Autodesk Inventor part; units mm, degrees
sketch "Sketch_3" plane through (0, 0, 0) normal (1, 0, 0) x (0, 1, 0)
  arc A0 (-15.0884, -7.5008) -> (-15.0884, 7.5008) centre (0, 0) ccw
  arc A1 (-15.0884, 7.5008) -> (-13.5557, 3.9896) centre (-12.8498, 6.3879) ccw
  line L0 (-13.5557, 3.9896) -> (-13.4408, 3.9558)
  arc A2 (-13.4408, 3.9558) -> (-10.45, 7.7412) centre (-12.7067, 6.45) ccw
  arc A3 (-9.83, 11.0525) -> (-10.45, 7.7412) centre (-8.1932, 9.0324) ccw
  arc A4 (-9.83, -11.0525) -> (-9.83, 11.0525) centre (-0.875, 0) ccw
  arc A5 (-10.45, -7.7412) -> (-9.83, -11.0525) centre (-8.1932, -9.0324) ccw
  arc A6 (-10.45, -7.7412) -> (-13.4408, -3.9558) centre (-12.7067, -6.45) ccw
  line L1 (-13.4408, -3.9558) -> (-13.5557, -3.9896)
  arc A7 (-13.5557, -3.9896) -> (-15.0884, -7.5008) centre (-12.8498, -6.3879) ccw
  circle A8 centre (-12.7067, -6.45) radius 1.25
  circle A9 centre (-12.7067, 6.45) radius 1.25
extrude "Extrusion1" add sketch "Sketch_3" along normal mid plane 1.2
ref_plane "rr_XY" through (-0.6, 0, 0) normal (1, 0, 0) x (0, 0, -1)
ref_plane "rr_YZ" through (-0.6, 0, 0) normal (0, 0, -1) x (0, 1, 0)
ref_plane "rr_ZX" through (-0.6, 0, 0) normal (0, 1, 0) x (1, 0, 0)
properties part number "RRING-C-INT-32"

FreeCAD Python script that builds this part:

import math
import FreeCAD as App
import Part
import Sketcher
from FreeCAD import Vector

doc = App.newDocument("Part")
body = doc.addObject("PartDesign::Body", "Body")

# Sketch on YZ plane
sketch1 = doc.addObject("Sketcher::SketchObject", "Sketch")
body.addObject(sketch1)
sketch1.AttachmentSupport = (doc.YZ_Plane, [""])
sketch1.MapMode = "FlatFace"
sketch1.addGeometry(Part.ArcOfCircle(Part.Circle(Vector(-12.8498, -6.3879, 0), Vector(0, 0, 1), 2.500028), math.radians(106.400922), math.radians(206.433858)), False)
sketch1.addGeometry(Part.ArcOfCircle(Part.Circle(Vector(0, 0, 0), Vector(0, 0, 1), 16.84998), math.radians(-153.566944), math.radians(153.566944)), False)
sketch1.addGeometry(Part.ArcOfCircle(Part.Circle(Vector(-12.8498, 6.3879, 0), Vector(0, 0, 1), 2.499975), math.radians(153.566142), math.radians(253.599078)), False)
sketch1.addGeometry(Part.LineSegment(Vector(-13.5557, 3.9896, 0), Vector(-13.4408, 3.9558, 0)), False)
sketch1.addGeometry(Part.ArcOfCircle(Part.Circle(Vector(-12.7067, 6.45, 0), Vector(0, 0, 1), 2.599988), math.radians(-106.40036), math.radians(29.776588)), False)
sketch1.addGeometry(Part.ArcOfCircle(Part.Circle(Vector(-8.1932, 9.0324, 0), Vector(0, 0, 1), 2.599984), math.radians(129.01636), math.radians(209.775494)), False)
sketch1.addGeometry(Part.ArcOfCircle(Part.Circle(Vector(-0.875, 0, 0), Vector(0, 0, 1), 14.22497), math.radians(-129.015219), math.radians(129.015219)), False)
sketch1.addGeometry(Part.ArcOfCircle(Part.Circle(Vector(-8.1932, -9.0324, 0), Vector(0, 0, 1), 2.600066), math.radians(150.224506), math.radians(230.98364)), False)
sketch1.addGeometry(Part.ArcOfCircle(Part.Circle(Vector(-12.7067, -6.45, 0), Vector(0, 0, 1), 2.599979), math.radians(-29.776588), math.radians(106.40036)), False)
sketch1.addGeometry(Part.LineSegment(Vector(-13.4408, -3.9558, 0), Vector(-13.5557, -3.9896, 0)), False)
sketch1.addGeometry(Part.Circle(Vector(-12.7067, -6.45, 0), Vector(0, 0, 1), 1.25), False)
sketch1.addGeometry(Part.Circle(Vector(-12.7067, 6.45, 0), Vector(0, 0, 1), 1.25), False)
sketch1.addConstraint(Sketcher.Constraint("Coincident", 0, 2, 1, 1))
sketch1.addConstraint(Sketcher.Constraint("Coincident", 1, 2, 2, 1))
sketch1.addConstraint(Sketcher.Constraint("Coincident", 2, 2, 3, 1))
sketch1.addConstraint(Sketcher.Constraint("Coincident", 3, 2, 4, 1))
sketch1.addConstraint(Sketcher.Constraint("Coincident", 4, 2, 5, 2))
sketch1.addConstraint(Sketcher.Constraint("Coincident", 5, 1, 6, 2))
sketch1.addConstraint(Sketcher.Constraint("Coincident", 6, 1, 7, 2))
sketch1.addConstraint(Sketcher.Constraint("Coincident", 7, 1, 8, 1))
sketch1.addConstraint(Sketcher.Constraint("Coincident", 8, 2, 9, 1))
sketch1.addConstraint(Sketcher.Constraint("Coincident", 9, 2, 0, 1))
sketch1.addConstraint(Sketcher.Constraint("Coincident", 1, 3, -1, 1))
sketch1.addConstraint(Sketcher.Constraint("Coincident", 10, 3, 8, 3))
sketch1.addConstraint(Sketcher.Constraint("Coincident", 11, 3, 4, 3))
sketch1.addConstraint(Sketcher.Constraint("PointOnObject", 6, 3, -1))
sketch1.addConstraint(Sketcher.Constraint("Diameter", 10, 2.5))
sketch1.addConstraint(Sketcher.Constraint("Diameter", 11, 2.5))
sketch1.addConstraint(Sketcher.Constraint("Radius", 0, 2.5))
sketch1.addConstraint(Sketcher.Constraint("Radius", 2, 2.5))
sketch1.addConstraint(Sketcher.Constraint("Radius", 4, 2.6))
sketch1.addConstraint(Sketcher.Constraint("Radius", 5, 2.6))
sketch1.addConstraint(Sketcher.Constraint("Radius", 7, 2.6))
sketch1.addConstraint(Sketcher.Constraint("Radius", 8, 2.6))
sketch1.addConstraint(Sketcher.Constraint("Radius", 1, 16.85))
sketch1.addConstraint(Sketcher.Constraint("Radius", 6, 14.225))
sketch1.addConstraint(Sketcher.Constraint("DistanceY", 8, 3, 4, 3, 12.9))
sketch1.addConstraint(Sketcher.Constraint("DistanceY", -1, 1, 4, 3, 6.45))
sketch1.addConstraint(Sketcher.Constraint("DistanceX", 4, 2, -1, 1, 10.45))
sketch1.addConstraint(Sketcher.Constraint("DistanceX", 5, 1, -1, 1, 9.83))
sketch1.addConstraint(Sketcher.Constraint("DistanceX", 6, 1, -1, 1, 9.83))
sketch1.addConstraint(Sketcher.Constraint("DistanceX", 7, 1, -1, 1, 10.45))
sketch1.addConstraint(Sketcher.Constraint("DistanceY", 5, 3, 5, 1, 2.02))
sketch1.addConstraint(Sketcher.Constraint("DistanceY", 6, 1, 7, 3, 2.02))
sketch1.addConstraint(Sketcher.Constraint("DistanceY", 0, 3, -1, 1, 6.388))
sketch1.addConstraint(Sketcher.Constraint("DistanceY", -1, 1, 2, 3, 6.388))
sketch1.addConstraint(Sketcher.Constraint("DistanceX", 6, 3, -1, 1, 0.875))
sketch1.addConstraint(Sketcher.Constraint("DistanceY", 0, 2, 0, 3, 1.113))
sketch1.addConstraint(Sketcher.Constraint("DistanceY", 2, 3, 1, 2, 1.113))
sketch1.addConstraint(Sketcher.Constraint("DistanceX", 2, 2, 2, 3, 0.706))
sketch1.addConstraint(Sketcher.Constraint("DistanceX", 2, 2, 3, 2, 0.115))
sketch1.addConstraint(Sketcher.Constraint("DistanceX", 8, 2, 0, 3, 0.591))
sketch1.addConstraint(Sketcher.Constraint("DistanceX", 9, 2, 8, 2, 0.115))
pad1 = doc.addObject("PartDesign::Pad", "Pad")
body.addObject(pad1)
pad1.Profile = sketch1
pad1.Length = 1.2
pad1.Midplane = True

doc.recompute()
